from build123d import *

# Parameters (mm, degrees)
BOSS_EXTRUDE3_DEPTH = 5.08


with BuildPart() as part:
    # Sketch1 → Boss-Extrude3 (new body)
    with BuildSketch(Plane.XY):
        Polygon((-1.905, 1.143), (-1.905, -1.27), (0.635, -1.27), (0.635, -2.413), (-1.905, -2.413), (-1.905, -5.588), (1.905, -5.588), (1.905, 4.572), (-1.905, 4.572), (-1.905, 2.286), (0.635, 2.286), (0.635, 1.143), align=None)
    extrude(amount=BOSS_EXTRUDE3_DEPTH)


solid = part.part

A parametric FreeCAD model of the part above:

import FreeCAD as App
import Part
import Sketcher
from FreeCAD import Vector
Q = App.Units.Quantity


def add_polygon(sketch, points):
    """Adds a closed chain of lines whose ends are joined by coincident constraints."""
    first, n = sketch.GeometryCount, len(points)
    for a, b in zip(points, points[1:] + points[:1]):
        sketch.addGeometry(Part.LineSegment(App.Vector(*a, 0), App.Vector(*b, 0)), False)
    for i in range(n):
        sketch.addConstraint(Sketcher.Constraint("Coincident", first + i, 2, first + (i + 1) % n, 1))

doc = App.newDocument("Part")
body = doc.addObject("PartDesign::Body", "Body")

# Sketch on XY plane
sketch1 = body.newObject("Sketcher::SketchObject", "Sketch")
sketch1.AttachmentSupport = (doc.getObject("XY_Plane"), [""])
sketch1.MapMode = "FlatFace"
add_polygon(sketch1, [(-1.9, 1.1), (-1.9, -1.3), (0.6, -1.3), (0.6, -2.4), (-1.9, -2.4), (-1.9, -5.6), (1.9, -5.6), (1.9, 4.6), (-1.9, 4.6), (-1.9, 2.3), (0.6, 2.3), (0.6, 1.1)])  # lines 0-11
sketch1.addConstraint([
    Sketcher.Constraint("Vertical", 0),
    Sketcher.Constraint("Horizontal", 1),
    Sketcher.Constraint("Vertical", 2),
    Sketcher.Constraint("Horizontal", 3),
    Sketcher.Constraint("Vertical", 4),
    Sketcher.Constraint("Horizontal", 5),
    Sketcher.Constraint("Vertical", 6),
    Sketcher.Constraint("Horizontal", 7),
    Sketcher.Constraint("Vertical", 8),
    Sketcher.Constraint("Horizontal", 9),
    Sketcher.Constraint("Vertical", 10),
    Sketcher.Constraint("Horizontal", 11),
    Sketcher.Constraint("Vertical", 0, 2, 3, 2),
    Sketcher.Constraint("Vertical", 4, 2, 7, 2),
    Sketcher.Constraint("Vertical", 2, 2, 9, 2),
    Sketcher.Constraint("Equal", 2, 10),
    Sketcher.Constraint("DistanceX", 1, 1, 1, 2, Q("0.1 in")),
    Sketcher.Constraint("DistanceY", 6, 1, 6, 2, Q("0.4 in")),
    Sketcher.Constraint("DistanceX", 5, 1, 5, 2, Q("0.15 in")),
    Sketcher.Constraint("DistanceY", 8, 2, 8, 1, Q("0.09 in")),
    Sketcher.Constraint("DistanceY", 0, 2, 0, 1, Q("0.095 in")),
    Sketcher.Constraint("DistanceY", 2, 2, 2, 1, Q("0.045 in")),
    Sketcher.Constraint("DistanceY", 0, 2, -1, 1, Q("0.05 in")),
    Sketcher.Constraint("DistanceX", 0, 2, -1, 1, Q("0.075 in")),
])
pad1 = body.newObject("PartDesign::Pad", "Pad")
pad1.Profile = sketch1
pad1.Length = Q("0.2 in")

doc.recompute()
